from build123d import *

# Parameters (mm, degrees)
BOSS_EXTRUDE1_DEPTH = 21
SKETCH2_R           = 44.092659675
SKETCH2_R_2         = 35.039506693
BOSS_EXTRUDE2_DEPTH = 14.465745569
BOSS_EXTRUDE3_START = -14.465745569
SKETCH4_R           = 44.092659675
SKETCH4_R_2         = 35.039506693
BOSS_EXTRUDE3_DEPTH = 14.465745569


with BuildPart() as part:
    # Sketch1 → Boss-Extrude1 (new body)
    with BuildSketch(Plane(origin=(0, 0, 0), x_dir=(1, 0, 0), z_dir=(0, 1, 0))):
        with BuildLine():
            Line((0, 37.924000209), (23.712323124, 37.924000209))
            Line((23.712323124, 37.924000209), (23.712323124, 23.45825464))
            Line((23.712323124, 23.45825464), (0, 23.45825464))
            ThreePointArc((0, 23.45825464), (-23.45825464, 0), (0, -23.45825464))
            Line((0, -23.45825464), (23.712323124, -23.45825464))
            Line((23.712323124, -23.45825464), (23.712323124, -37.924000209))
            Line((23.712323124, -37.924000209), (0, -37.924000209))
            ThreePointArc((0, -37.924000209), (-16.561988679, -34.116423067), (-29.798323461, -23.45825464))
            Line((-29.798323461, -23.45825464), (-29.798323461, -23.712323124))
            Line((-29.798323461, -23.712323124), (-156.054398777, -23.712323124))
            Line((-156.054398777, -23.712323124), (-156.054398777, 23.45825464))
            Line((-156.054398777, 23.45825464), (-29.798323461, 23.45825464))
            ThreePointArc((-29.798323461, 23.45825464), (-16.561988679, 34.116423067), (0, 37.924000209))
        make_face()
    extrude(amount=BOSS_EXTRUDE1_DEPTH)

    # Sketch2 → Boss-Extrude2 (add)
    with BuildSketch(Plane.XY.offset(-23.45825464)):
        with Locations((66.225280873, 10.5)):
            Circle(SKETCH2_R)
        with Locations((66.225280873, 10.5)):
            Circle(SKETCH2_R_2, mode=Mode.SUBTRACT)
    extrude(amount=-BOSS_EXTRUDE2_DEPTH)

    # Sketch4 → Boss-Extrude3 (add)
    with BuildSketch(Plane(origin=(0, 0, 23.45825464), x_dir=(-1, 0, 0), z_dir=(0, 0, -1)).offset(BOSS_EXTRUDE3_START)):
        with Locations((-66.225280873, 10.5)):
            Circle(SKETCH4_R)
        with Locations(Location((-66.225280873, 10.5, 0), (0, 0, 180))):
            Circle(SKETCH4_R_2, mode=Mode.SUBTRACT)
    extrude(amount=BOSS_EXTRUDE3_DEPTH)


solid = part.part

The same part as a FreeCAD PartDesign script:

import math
import FreeCAD as App
import Part
import Sketcher
from FreeCAD import Vector

doc = App.newDocument("Part")
params = doc.addObject("Spreadsheet::Sheet", "Params")
for row, (alias, value) in enumerate([
    ("pad1_length", "21 mm"),
    ("pad2_length", "14.465746 mm"),
    ("pad3_length", "14.465746 mm"),
], start=1):
    params.set(f"A{row}", alias)
    params.set(f"B{row}", "=" + value)
    params.setAlias(f"B{row}", alias)

body = doc.addObject("PartDesign::Body", "Body")

sketch1 = doc.addObject("Sketcher::SketchObject", "Sketch")
body.addObject(sketch1)
sketch1.AttachmentSupport = (doc.XZ_Plane, [""])
sketch1.MapMode = "FlatFace"
sketch1.addGeometry(Part.LineSegment(Vector(23.71, -37.92, 0), Vector(0, -37.92, 0)), False)
sketch1.addGeometry(Part.ArcOfCircle(Part.Circle(Vector(0, 0, 0), Vector(0, 0, 1), 37.92), math.radians(-142), math.radians(-90)), False)
sketch1.addGeometry(Part.LineSegment(Vector(-29.8, -23.46, 0), Vector(-156.05, -23.46, 0)), False)
sketch1.addGeometry(Part.LineSegment(Vector(-156.05, -23.46, 0), Vector(-156.05, 23.71, 0)), False)
sketch1.addGeometry(Part.LineSegment(Vector(-156.05, 23.71, 0), Vector(-29.8, 23.71, 0)), False)
sketch1.addGeometry(Part.LineSegment(Vector(-29.8, 23.71, 0), Vector(-29.8, 23.46, 0)), False)
sketch1.addGeometry(Part.ArcOfCircle(Part.Circle(Vector(0, 0, 0), Vector(0, 0, 1), 37.92), math.radians(90), math.radians(142)), False)
sketch1.addGeometry(Part.LineSegment(Vector(0, 37.92, 0), Vector(23.71, 37.92, 0)), False)
sketch1.addGeometry(Part.LineSegment(Vector(23.71, 37.92, 0), Vector(23.71, 23.46, 0)), False)
sketch1.addGeometry(Part.LineSegment(Vector(23.71, 23.46, 0), Vector(0, 23.46, 0)), False)
sketch1.addGeometry(Part.ArcOfCircle(Part.Circle(Vector(0, 0, 0), Vector(0, 0, 1), 23.46), math.radians(90), math.radians(270)), False)
sketch1.addGeometry(Part.LineSegment(Vector(0, -23.46, 0), Vector(23.71, -23.46, 0)), False)
sketch1.addGeometry(Part.LineSegment(Vector(23.71, -23.46, 0), Vector(23.71, -37.92, 0)), False)
sketch1.addConstraint(Sketcher.Constraint("Tangent", 0, 2, 1, 2))
sketch1.addConstraint(Sketcher.Constraint("Coincident", 1, 1, 2, 1))
sketch1.addConstraint(Sketcher.Constraint("Coincident", 2, 2, 3, 1))
sketch1.addConstraint(Sketcher.Constraint("Coincident", 3, 2, 4, 1))
sketch1.addConstraint(Sketcher.Constraint("Coincident", 4, 2, 5, 1))
sketch1.addConstraint(Sketcher.Constraint("Coincident", 5, 2, 6, 2))
sketch1.addConstraint(Sketcher.Constraint("Tangent", 6, 1, 7, 1))
sketch1.addConstraint(Sketcher.Constraint("Coincident", 7, 2, 8, 1))
sketch1.addConstraint(Sketcher.Constraint("Coincident", 8, 2, 9, 1))
sketch1.addConstraint(Sketcher.Constraint("Tangent", 9, 2, 10, 1))
sketch1.addConstraint(Sketcher.Constraint("Tangent", 10, 2, 11, 1))
sketch1.addConstraint(Sketcher.Constraint("Coincident", 11, 2, 12, 1))
sketch1.addConstraint(Sketcher.Constraint("Coincident", 12, 2, 0, 1))
sketch1.addConstraint(Sketcher.Constraint("Horizontal", 0))
sketch1.addConstraint(Sketcher.Constraint("Horizontal", 2))
sketch1.addConstraint(Sketcher.Constraint("Vertical", 3))
sketch1.addConstraint(Sketcher.Constraint("Horizontal", 4))
sketch1.addConstraint(Sketcher.Constraint("Vertical", 5))
sketch1.addConstraint(Sketcher.Constraint("Horizontal", 7))
sketch1.addConstraint(Sketcher.Constraint("Vertical", 8))
sketch1.addConstraint(Sketcher.Constraint("Horizontal", 9))
sketch1.addConstraint(Sketcher.Constraint("Horizontal", 11))
sketch1.addConstraint(Sketcher.Constraint("Vertical", 12))
sketch1.addConstraint(Sketcher.Constraint("Coincident", 1, 3, -1, 1))
sketch1.addConstraint(Sketcher.Constraint("Coincident", 6, 3, -1, 1))
sketch1.addConstraint(Sketcher.Constraint("Coincident", 10, 3, -1, 1))
sketch1.addConstraint(Sketcher.Constraint("Equal", 1, 6))
sketch1.addConstraint(Sketcher.Constraint("Horizontal", 5, 2, 8, 2))
sketch1.addConstraint(Sketcher.Constraint("Horizontal", 2, 2, 10, 2))
sketch1.addConstraint(Sketcher.Constraint("Vertical", 8, 2, 11, 2))
sketch1.addConstraint(Sketcher.Constraint("Radius", 1, 37.924))
sketch1.addConstraint(Sketcher.Constraint("Radius", 10, 23.458255))
sketch1.addConstraint(Sketcher.Constraint("DistanceY", 5, 2, 5, 1, 0.254068))
sketch1.addConstraint(Sketcher.Constraint("DistanceX", 2, 2, -1, 1, 156.054399))
sketch1.addConstraint(Sketcher.Constraint("DistanceX", 0, 2, 0, 1, 23.712323))
pad1 = doc.addObject("PartDesign::Pad", "Pad")
body.addObject(pad1)
pad1.Profile = sketch1
pad1.setExpression("Length", "Params.pad1_length")
pad1.Reversed = True

sketch2 = doc.addObject("Sketcher::SketchObject", "Sketch001")
body.addObject(sketch2)
sketch2.AttachmentSupport = (doc.XY_Plane, [""])
sketch2.MapMode = "FlatFace"
sketch2.AttachmentOffset = App.Placement(Vector(0, 0, -23.458255), App.Rotation())
sketch2.addGeometry(Part.Circle(Vector(66, 10, 0), Vector(0, 0, 1), 44), False)
sketch2.addGeometry(Part.Circle(Vector(66, 10, 0), Vector(0, 0, 1), 35), False)
sketch2.addConstraint(Sketcher.Constraint("Coincident", 1, 3, 0, 3))
sketch2.addConstraint(Sketcher.Constraint("DistanceY", -1, 1, 0, 3, 10.5))
sketch2.addConstraint(Sketcher.Constraint("Diameter", 0, 88.185319))
sketch2.addConstraint(Sketcher.Constraint("Diameter", 1, 70.079013))
sketch2.addConstraint(Sketcher.Constraint("DistanceX", -1, 1, 0, 3, 66.225281))
pad2 = doc.addObject("PartDesign::Pad", "Pad001")
body.addObject(pad2)
pad2.Profile = sketch2
pad2.setExpression("Length", "Params.pad2_length")
pad2.Reversed = True

sketch3 = doc.addObject("Sketcher::SketchObject", "Sketch002")
body.addObject(sketch3)
sketch3.AttachmentSupport = (doc.XY_Plane, [""])
sketch3.MapMode = "FlatFace"
sketch3.AttachmentOffset = App.Placement(Vector(0, 0, 37.924), App.Rotation())
sketch3.addGeometry(Part.Circle(Vector(66, 10, 0), Vector(0, 0, 1), 44), False)
sketch3.addGeometry(Part.Circle(Vector(66, 10, 0), Vector(0, 0, 1), 35), False)
sketch3.addConstraint(Sketcher.Constraint("Coincident", 1, 3, 0, 3))
sketch3.addConstraint(Sketcher.Constraint("DistanceY", -1, 1, 0, 3, 10.5))
sketch3.addConstraint(Sketcher.Constraint("Diameter", 0, 88.185319))
sketch3.addConstraint(Sketcher.Constraint("Diameter", 1, 70.079013))
sketch3.addConstraint(Sketcher.Constraint("DistanceX", -1, 1, 0, 3, 66.225281))
pad3 = doc.addObject("PartDesign::Pad", "Pad002")
body.addObject(pad3)
pad3.Profile = sketch3
pad3.setExpression("Length", "Params.pad3_length")
pad3.Reversed = True

doc.recompute()
